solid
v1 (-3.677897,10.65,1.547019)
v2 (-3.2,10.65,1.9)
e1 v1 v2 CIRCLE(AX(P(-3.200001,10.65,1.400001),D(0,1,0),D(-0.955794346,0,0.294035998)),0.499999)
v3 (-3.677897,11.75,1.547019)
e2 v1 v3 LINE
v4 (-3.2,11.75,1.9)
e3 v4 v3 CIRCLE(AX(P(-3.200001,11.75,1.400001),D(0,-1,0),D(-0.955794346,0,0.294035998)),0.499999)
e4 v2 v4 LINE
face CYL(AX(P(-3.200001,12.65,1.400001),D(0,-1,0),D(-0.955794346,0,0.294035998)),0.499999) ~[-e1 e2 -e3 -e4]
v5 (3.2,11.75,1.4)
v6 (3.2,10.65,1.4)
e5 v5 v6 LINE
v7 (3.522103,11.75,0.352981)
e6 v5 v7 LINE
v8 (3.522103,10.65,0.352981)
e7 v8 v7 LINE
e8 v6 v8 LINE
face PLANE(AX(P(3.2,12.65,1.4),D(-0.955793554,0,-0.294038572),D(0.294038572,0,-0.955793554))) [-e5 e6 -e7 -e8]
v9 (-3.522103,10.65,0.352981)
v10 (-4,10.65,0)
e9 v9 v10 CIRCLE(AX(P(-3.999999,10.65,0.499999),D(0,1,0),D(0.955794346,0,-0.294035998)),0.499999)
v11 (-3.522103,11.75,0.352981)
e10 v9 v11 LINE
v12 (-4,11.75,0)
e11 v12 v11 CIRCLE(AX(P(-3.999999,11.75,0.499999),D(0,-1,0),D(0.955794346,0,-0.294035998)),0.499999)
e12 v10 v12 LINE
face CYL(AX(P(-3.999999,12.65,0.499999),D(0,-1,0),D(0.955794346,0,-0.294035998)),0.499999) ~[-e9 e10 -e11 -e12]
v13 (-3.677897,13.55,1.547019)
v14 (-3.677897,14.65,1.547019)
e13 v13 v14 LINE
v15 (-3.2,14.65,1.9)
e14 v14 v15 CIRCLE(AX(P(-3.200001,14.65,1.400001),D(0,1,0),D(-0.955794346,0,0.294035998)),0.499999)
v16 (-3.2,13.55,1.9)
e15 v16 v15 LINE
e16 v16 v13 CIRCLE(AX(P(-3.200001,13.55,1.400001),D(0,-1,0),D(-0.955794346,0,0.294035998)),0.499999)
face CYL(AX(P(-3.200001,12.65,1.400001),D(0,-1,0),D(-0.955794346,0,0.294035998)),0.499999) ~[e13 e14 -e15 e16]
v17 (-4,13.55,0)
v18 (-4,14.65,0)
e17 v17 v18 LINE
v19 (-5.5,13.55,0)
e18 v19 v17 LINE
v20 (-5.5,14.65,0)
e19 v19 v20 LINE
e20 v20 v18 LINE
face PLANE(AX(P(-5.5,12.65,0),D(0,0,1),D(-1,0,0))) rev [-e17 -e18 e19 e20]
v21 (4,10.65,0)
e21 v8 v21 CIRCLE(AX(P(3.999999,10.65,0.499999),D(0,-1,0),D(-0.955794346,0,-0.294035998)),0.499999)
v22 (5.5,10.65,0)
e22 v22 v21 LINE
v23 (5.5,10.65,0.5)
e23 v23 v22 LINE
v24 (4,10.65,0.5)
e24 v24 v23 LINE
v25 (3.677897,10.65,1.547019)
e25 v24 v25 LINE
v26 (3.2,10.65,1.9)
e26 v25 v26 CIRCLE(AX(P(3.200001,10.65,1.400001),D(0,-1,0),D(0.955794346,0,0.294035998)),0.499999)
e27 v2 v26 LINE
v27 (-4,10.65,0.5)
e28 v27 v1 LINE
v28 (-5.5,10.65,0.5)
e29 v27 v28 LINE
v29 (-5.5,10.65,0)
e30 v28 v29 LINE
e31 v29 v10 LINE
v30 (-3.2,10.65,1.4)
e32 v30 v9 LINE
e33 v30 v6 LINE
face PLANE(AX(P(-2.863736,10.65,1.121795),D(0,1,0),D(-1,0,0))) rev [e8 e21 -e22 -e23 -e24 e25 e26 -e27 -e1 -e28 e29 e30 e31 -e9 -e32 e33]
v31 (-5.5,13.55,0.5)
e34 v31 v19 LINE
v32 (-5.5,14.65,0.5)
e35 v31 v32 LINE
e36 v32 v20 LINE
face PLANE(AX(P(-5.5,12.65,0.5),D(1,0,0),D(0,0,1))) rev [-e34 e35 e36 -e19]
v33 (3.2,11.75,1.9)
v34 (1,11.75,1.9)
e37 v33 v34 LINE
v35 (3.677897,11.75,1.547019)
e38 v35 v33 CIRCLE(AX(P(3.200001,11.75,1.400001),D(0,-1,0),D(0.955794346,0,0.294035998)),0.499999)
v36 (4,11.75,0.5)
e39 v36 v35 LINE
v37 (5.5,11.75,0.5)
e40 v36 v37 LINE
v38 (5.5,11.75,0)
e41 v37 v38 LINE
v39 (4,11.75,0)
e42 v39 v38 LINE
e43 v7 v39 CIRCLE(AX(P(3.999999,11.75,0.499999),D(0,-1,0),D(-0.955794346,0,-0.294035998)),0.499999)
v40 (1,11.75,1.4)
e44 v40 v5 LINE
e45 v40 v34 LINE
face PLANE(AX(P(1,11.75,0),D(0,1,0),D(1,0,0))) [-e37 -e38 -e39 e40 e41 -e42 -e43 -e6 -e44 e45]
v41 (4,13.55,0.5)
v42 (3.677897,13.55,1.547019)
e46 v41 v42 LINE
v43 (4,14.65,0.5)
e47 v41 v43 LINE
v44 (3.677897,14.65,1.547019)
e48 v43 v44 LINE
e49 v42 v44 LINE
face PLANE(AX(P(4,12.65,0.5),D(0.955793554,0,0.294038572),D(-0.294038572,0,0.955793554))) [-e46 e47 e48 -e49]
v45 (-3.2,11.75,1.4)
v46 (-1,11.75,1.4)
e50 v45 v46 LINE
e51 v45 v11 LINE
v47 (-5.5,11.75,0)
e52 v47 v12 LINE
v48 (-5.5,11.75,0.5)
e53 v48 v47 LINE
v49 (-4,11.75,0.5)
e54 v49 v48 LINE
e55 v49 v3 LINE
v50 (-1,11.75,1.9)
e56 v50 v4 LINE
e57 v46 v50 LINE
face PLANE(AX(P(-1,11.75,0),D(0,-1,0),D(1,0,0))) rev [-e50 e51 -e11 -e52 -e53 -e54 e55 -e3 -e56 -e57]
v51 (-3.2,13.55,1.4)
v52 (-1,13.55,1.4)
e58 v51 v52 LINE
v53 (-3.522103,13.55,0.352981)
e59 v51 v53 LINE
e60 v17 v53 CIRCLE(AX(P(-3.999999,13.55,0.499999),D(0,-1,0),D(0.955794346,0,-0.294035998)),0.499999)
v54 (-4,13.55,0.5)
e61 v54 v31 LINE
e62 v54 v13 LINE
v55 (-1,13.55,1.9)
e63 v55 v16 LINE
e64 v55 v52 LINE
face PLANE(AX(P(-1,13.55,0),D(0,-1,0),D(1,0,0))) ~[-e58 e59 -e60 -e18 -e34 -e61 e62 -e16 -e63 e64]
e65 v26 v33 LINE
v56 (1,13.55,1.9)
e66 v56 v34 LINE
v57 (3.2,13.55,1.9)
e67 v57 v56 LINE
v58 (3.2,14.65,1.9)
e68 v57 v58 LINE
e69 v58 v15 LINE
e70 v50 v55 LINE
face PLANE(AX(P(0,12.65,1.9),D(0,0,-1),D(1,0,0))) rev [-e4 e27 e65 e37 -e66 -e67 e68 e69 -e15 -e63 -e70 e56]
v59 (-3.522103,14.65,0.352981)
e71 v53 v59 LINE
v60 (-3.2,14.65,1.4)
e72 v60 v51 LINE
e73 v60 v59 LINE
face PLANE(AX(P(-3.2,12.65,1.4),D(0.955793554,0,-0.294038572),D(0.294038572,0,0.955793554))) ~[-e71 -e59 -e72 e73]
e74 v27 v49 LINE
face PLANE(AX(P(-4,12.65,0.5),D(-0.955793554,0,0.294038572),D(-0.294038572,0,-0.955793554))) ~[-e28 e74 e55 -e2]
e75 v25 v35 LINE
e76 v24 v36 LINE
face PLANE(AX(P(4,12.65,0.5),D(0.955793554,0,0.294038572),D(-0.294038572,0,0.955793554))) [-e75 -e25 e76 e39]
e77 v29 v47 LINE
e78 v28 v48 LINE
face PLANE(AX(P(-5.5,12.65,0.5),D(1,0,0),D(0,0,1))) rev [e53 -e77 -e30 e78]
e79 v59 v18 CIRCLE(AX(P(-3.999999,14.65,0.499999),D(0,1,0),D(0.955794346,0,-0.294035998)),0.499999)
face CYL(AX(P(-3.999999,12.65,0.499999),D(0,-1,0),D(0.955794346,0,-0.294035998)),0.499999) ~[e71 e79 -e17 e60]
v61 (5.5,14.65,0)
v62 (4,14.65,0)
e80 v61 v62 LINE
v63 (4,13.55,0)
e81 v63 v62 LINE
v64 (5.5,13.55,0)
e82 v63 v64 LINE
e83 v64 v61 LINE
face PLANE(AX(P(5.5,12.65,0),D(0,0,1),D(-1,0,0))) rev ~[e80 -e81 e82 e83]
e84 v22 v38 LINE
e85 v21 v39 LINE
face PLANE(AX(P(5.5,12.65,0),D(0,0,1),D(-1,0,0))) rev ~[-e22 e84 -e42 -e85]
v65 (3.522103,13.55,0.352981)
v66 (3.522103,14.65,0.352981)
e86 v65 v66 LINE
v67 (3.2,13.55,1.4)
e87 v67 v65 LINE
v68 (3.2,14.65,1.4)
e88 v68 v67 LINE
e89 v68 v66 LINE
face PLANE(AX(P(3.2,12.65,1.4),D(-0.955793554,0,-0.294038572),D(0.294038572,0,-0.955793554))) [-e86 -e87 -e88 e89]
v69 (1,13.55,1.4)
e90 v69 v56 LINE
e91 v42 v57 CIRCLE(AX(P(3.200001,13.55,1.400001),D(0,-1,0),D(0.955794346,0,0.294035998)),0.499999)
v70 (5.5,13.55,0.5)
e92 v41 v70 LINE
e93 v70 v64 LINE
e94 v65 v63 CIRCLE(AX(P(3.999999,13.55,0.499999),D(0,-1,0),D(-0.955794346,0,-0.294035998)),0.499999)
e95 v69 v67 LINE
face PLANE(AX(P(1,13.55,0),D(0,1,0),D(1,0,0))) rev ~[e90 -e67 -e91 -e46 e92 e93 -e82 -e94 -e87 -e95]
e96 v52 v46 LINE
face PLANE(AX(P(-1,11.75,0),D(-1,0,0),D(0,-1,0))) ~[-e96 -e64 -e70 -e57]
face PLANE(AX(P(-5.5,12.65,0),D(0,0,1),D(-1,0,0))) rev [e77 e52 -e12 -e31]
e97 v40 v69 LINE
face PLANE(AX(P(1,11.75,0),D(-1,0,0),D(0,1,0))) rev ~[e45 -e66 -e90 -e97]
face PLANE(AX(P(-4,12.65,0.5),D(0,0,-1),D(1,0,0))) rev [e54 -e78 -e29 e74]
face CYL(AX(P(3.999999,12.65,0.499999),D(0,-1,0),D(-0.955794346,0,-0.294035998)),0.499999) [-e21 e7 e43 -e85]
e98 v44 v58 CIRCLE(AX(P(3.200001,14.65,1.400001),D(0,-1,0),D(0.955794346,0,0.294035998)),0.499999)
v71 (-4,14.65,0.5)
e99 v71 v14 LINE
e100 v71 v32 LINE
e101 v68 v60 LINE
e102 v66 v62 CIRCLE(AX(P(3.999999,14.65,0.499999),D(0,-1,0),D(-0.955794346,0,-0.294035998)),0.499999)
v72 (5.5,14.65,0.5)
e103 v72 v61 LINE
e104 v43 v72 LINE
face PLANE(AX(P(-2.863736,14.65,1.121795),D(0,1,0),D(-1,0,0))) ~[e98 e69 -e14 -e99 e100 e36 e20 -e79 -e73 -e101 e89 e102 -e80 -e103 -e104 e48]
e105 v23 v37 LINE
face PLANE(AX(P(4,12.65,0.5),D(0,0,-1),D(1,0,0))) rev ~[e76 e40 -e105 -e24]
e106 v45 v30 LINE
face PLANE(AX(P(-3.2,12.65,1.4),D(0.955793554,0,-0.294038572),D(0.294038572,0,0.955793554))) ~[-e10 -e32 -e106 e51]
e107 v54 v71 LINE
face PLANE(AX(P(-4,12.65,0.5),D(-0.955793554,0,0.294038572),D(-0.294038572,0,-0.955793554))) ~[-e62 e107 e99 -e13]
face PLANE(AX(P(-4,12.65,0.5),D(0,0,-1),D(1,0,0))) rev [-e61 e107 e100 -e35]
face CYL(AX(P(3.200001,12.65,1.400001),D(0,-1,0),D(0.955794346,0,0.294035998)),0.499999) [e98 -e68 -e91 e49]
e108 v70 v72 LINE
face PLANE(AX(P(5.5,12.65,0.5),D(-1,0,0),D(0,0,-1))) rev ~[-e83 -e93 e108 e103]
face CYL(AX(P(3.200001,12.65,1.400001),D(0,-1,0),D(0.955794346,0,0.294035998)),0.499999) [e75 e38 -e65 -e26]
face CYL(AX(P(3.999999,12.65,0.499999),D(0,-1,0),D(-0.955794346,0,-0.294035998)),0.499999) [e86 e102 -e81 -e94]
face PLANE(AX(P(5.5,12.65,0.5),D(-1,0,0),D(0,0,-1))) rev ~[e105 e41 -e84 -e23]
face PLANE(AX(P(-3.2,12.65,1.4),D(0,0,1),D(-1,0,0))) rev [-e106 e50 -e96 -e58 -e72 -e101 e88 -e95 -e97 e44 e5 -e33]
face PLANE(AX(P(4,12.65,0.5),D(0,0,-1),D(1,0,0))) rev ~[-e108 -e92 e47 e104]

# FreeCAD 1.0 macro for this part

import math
import FreeCAD as App
import Part
import Sketcher
Q = App.Units.Quantity

doc = App.newDocument("Part")
body = doc.addObject("PartDesign::Body", "Body")

# Sketch on XZ plane
sketch1 = body.newObject("Sketcher::SketchObject", "Sketch")
sketch1.AttachmentSupport = (doc.getObject("XZ_Plane"), [""])
sketch1.MapMode = "FlatFace"
sketch1.addGeometry(Part.LineSegment(App.Vector(3.2, 1.9, 0), App.Vector(0, 1.9, 0)), False)
sketch1.addGeometry(Part.LineSegment(App.Vector(0, 1.9, 0), App.Vector(0, 1.4, 0)), False)
sketch1.addGeometry(Part.LineSegment(App.Vector(0, 1.4, 0), App.Vector(3.2, 1.4, 0)), False)
sketch1.addGeometry(Part.LineSegment(App.Vector(3.2, 1.4, 0), App.Vector(3.52, 0.35, 0)), False)
sketch1.addGeometry(Part.ArcOfCircle(Part.Circle(App.Vector(4, 0.5, 0), App.Vector(0, 0, 1), 0.5), math.radians(-163), math.radians(-90)), False)
sketch1.addGeometry(Part.LineSegment(App.Vector(4, 0, 0), App.Vector(5.5, 0, 0)), False)
sketch1.addGeometry(Part.LineSegment(App.Vector(5.5, 0, 0), App.Vector(5.5, 0.5, 0)), False)
sketch1.addGeometry(Part.LineSegment(App.Vector(5.5, 0.5, 0), App.Vector(4, 0.5, 0)), False)
sketch1.addGeometry(Part.LineSegment(App.Vector(4, 0.5, 0), App.Vector(3.68, 1.55, 0)), False)
sketch1.addGeometry(Part.ArcOfCircle(Part.Circle(App.Vector(3.2, 1.4, 0), App.Vector(0, 0, 1), 0.5), math.radians(17), math.radians(90)), False)
sketch1.addConstraint(Sketcher.Constraint("Coincident", 0, 2, 1, 1))
sketch1.addConstraint(Sketcher.Constraint("Coincident", 1, 2, 2, 1))
sketch1.addConstraint(Sketcher.Constraint("Coincident", 2, 2, 3, 1))
sketch1.addConstraint(Sketcher.Constraint("Coincident", 3, 2, 4, 1))
sketch1.addConstraint(Sketcher.Constraint("Coincident", 4, 2, 5, 1))
sketch1.addConstraint(Sketcher.Constraint("Coincident", 5, 2, 6, 1))
sketch1.addConstraint(Sketcher.Constraint("Coincident", 6, 2, 7, 1))
sketch1.addConstraint(Sketcher.Constraint("Coincident", 7, 2, 8, 1))
sketch1.addConstraint(Sketcher.Constraint("Coincident", 8, 2, 9, 1))
sketch1.addConstraint(Sketcher.Constraint("Coincident", 9, 2, 0, 1))
sketch1.addConstraint(Sketcher.Constraint("Horizontal", 0))
sketch1.addConstraint(Sketcher.Constraint("Vertical", 1))
sketch1.addConstraint(Sketcher.Constraint("Horizontal", 2))
sketch1.addConstraint(Sketcher.Constraint("Horizontal", 5))
sketch1.addConstraint(Sketcher.Constraint("Vertical", 6))
sketch1.addConstraint(Sketcher.Constraint("Horizontal", 7))
sketch1.addConstraint(Sketcher.Constraint("Coincident", 2, 2, 9, 3))
sketch1.addConstraint(Sketcher.Constraint("Coincident", 7, 2, 4, 3))
sketch1.addConstraint(Sketcher.Constraint("Equal", 4, 9))
sketch1.addConstraint(Sketcher.Constraint("PointOnObject", 0, 2, -2))
sketch1.addConstraint(Sketcher.Constraint("PointOnObject", 4, 2, -1))
sketch1.addConstraint(Sketcher.Constraint("Vertical", 4, 2, 7, 2))
sketch1.addConstraint(Sketcher.Constraint("Vertical", 2, 2, 9, 2))
sketch1.addConstraint(Sketcher.Constraint("Equal", 3, 8))
sketch1.addConstraint(Sketcher.Constraint("Radius", 4, Q("0.499999 mm")))
sketch1.addConstraint(Sketcher.Constraint("DistanceX", 0, 2, 0, 1, Q("3.2 mm")))
sketch1.addConstraint(Sketcher.Constraint("DistanceX", 5, 1, 5, 2, Q("1.5 mm")))
sketch1.addConstraint(Sketcher.Constraint("DistanceX", -1, 1, 4, 3, Q("3.999999 mm")))
sketch1.addConstraint(Sketcher.Constraint("DistanceY", -1, 1, 9, 3, Q("1.400001 mm")))
sketch1.addConstraint(Sketcher.Constraint("DistanceX", 9, 3, 3, 2, Q("0.322102 mm")))
pad1 = body.newObject("PartDesign::Pad", "Pad")
pad1.Profile = sketch1
pad1.Length = 4
pad1.Midplane = True
doc.recompute()

mirrored = body.newObject("PartDesign::Mirrored", "Mirrored")
mirrored.Originals = [pad1]
mirrored.MirrorPlane = (doc.getObject("YZ_Plane"), [""])
body.Tip = mirrored

# Sketch on XY plane
sketch2 = body.newObject("Sketcher::SketchObject", "Sketch001")
sketch2.AttachmentSupport = (doc.getObject("XY_Plane"), [""])
sketch2.MapMode = "FlatFace"
sketch2.addGeometry(Part.LineSegment(App.Vector(1, 0.9, 0), App.Vector(1, -0.9, 0)), False)
sketch2.addGeometry(Part.LineSegment(App.Vector(1, -0.9, 0), App.Vector(6, -0.9, 0)), False)
sketch2.addGeometry(Part.LineSegment(App.Vector(6, -0.9, 0), App.Vector(6, 0.9, 0)), False)
sketch2.addGeometry(Part.LineSegment(App.Vector(6, 0.9, 0), App.Vector(1, 0.9, 0)), False)
sketch2.addConstraint(Sketcher.Constraint("Coincident", 0, 2, 1, 1))
sketch2.addConstraint(Sketcher.Constraint("Coincident", 1, 2, 2, 1))
sketch2.addConstraint(Sketcher.Constraint("Coincident", 2, 2, 3, 1))
sketch2.addConstraint(Sketcher.Constraint("Coincident", 3, 2, 0, 1))
sketch2.addConstraint(Sketcher.Constraint("Vertical", 0))
sketch2.addConstraint(Sketcher.Constraint("Horizontal", 1))
sketch2.addConstraint(Sketcher.Constraint("Vertical", 2))
sketch2.addConstraint(Sketcher.Constraint("Horizontal", 3))
sketch2.addConstraint(Sketcher.Constraint("DistanceX", 1, 1, 1, 2, Q("5 mm")))
sketch2.addConstraint(Sketcher.Constraint("DistanceY", 0, 2, 0, 1, Q("1.8 mm")))
sketch2.addConstraint(Sketcher.Constraint("DistanceX", -1, 1, 0, 2, Q("1 mm")))
sketch2.addConstraint(Sketcher.Constraint("DistanceY", 0, 2, -1, 1, Q("0.9 mm")))
pocket1 = body.newObject("PartDesign::Pocket", "Pocket")
pocket1.Profile = sketch2
pocket1.Type = "ThroughAll"
pocket1.Midplane = True
doc.recompute()

mirrored2 = body.newObject("PartDesign::Mirrored", "Mirrored001")
mirrored2.Originals = [pocket1]
mirrored2.MirrorPlane = (doc.getObject("YZ_Plane"), [""])
body.Tip = mirrored2
body2 = doc.addObject("PartDesign::Body", "Body001")
doc.recompute()

body.Placement = App.Placement(App.Vector(0, 12.65, 0), App.Rotation(App.Vector(0, 0, 1), 0))
boolean = body2.newObject("PartDesign::Boolean", "Boolean")
boolean.Type = "Fuse"
boolean.addObjects([body])

doc.recompute()
